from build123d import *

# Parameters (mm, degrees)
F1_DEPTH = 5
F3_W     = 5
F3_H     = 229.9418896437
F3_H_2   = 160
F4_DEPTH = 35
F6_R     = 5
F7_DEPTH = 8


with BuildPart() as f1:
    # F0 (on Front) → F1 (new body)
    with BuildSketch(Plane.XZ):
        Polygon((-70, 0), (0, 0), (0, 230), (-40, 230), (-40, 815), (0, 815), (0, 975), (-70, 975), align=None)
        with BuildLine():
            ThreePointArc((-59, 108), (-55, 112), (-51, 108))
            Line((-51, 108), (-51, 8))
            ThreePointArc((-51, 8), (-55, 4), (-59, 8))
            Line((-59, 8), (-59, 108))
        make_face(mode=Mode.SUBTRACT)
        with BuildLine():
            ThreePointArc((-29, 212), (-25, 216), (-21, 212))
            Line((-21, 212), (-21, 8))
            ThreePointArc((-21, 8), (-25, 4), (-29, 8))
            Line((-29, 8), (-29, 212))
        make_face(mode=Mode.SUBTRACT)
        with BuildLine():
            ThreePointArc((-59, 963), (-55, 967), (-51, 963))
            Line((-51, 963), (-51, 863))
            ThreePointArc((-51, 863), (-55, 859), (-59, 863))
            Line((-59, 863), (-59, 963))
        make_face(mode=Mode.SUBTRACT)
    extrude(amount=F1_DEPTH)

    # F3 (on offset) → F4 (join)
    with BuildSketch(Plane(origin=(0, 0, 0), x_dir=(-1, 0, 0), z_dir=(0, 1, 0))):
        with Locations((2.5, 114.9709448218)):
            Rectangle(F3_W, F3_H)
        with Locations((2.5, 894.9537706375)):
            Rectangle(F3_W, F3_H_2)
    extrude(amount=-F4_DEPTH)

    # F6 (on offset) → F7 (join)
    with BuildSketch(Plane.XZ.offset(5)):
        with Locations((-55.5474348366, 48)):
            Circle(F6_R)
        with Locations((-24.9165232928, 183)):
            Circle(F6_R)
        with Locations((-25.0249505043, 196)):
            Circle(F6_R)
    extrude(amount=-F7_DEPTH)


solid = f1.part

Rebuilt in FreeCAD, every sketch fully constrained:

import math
import FreeCAD as App
import Part
import Sketcher

V = App.Vector

doc = App.newDocument("Part")
body = doc.addObject("PartDesign::Body", "Body")

# Sketch on XZ plane
sketch1 = body.newObject("Sketcher::SketchObject", "Sketch")
sketch1.AttachmentSupport = (doc.getObject("XZ_Plane"), [""])
sketch1.MapMode = "FlatFace"
sketch1.addGeometry([
    Part.LineSegment(V(-70, 0, 0), V(0, 0, 0)),  # 0
    Part.LineSegment(V(0, 0, 0), V(0, 230, 0)),  # 1
    Part.LineSegment(V(0, 230, 0), V(-40, 230, 0)),  # 2
    Part.LineSegment(V(-40, 230, 0), V(-40, 815, 0)),  # 3
    Part.LineSegment(V(-40, 815, 0), V(0, 815, 0)),  # 4
    Part.LineSegment(V(0, 815, 0), V(0, 975, 0)),  # 5
    Part.LineSegment(V(0, 975, 0), V(-70, 975, 0)),  # 6
    Part.LineSegment(V(-70, 975, 0), V(-70, 0, 0)),  # 7
    Part.LineSegment(V(-59, 8, 0), V(-59, 108, 0)),  # 8
    Part.ArcOfCircle(Part.Circle(V(-55, 108, 0), V(0, 0, 1), 4), math.radians(0), math.radians(180)),  # 9
    Part.LineSegment(V(-51, 108, 0), V(-51, 8, 0)),  # 10
    Part.ArcOfCircle(Part.Circle(V(-55, 8, 0), V(0, 0, 1), 4), math.radians(180), math.radians(360)),  # 11
    Part.LineSegment(V(-29, 8, 0), V(-29, 212, 0)),  # 12
    Part.ArcOfCircle(Part.Circle(V(-25, 212, 0), V(0, 0, 1), 4), math.radians(0), math.radians(180)),  # 13
    Part.LineSegment(V(-21, 212, 0), V(-21, 8, 0)),  # 14
    Part.ArcOfCircle(Part.Circle(V(-25, 8, 0), V(0, 0, 1), 4), math.radians(180), math.radians(360)),  # 15
    Part.LineSegment(V(-59, 863, 0), V(-59, 963, 0)),  # 16
    Part.ArcOfCircle(Part.Circle(V(-55, 963, 0), V(0, 0, 1), 4), math.radians(0), math.radians(180)),  # 17
    Part.LineSegment(V(-51, 963, 0), V(-51, 863, 0)),  # 18
    Part.ArcOfCircle(Part.Circle(V(-55, 863, 0), V(0, 0, 1), 4), math.radians(180), math.radians(360)),  # 19
], False)
sketch1.addConstraint([
    Sketcher.Constraint("Coincident", 0, 2, 1, 1),
    Sketcher.Constraint("Coincident", 1, 2, 2, 1),
    Sketcher.Constraint("Coincident", 2, 2, 3, 1),
    Sketcher.Constraint("Coincident", 3, 2, 4, 1),
    Sketcher.Constraint("Coincident", 4, 2, 5, 1),
    Sketcher.Constraint("Coincident", 5, 2, 6, 1),
    Sketcher.Constraint("Coincident", 6, 2, 7, 1),
    Sketcher.Constraint("Coincident", 7, 2, 0, 1),
    Sketcher.Constraint("Tangent", 8, 2, 9, 2),
    Sketcher.Constraint("Tangent", 9, 1, 10, 1),
    Sketcher.Constraint("Tangent", 10, 2, 11, 2),
    Sketcher.Constraint("Tangent", 11, 1, 8, 1),
    Sketcher.Constraint("Tangent", 12, 2, 13, 2),
    Sketcher.Constraint("Tangent", 13, 1, 14, 1),
    Sketcher.Constraint("Tangent", 14, 2, 15, 2),
    Sketcher.Constraint("Tangent", 15, 1, 12, 1),
    Sketcher.Constraint("Tangent", 16, 2, 17, 2),
    Sketcher.Constraint("Tangent", 17, 1, 18, 1),
    Sketcher.Constraint("Tangent", 18, 2, 19, 2),
    Sketcher.Constraint("Tangent", 19, 1, 16, 1),
    Sketcher.Constraint("Horizontal", 0),
    Sketcher.Constraint("Vertical", 1),
    Sketcher.Constraint("Horizontal", 2),
    Sketcher.Constraint("Vertical", 3),
    Sketcher.Constraint("Horizontal", 4),
    Sketcher.Constraint("Vertical", 5),
    Sketcher.Constraint("Horizontal", 6),
    Sketcher.Constraint("Vertical", 7),
    Sketcher.Constraint("Vertical", 8),
    Sketcher.Constraint("Vertical", 10),
    Sketcher.Constraint("Vertical", 12),
    Sketcher.Constraint("Vertical", 14),
    Sketcher.Constraint("Vertical", 16),
    Sketcher.Constraint("Vertical", 18),
    Sketcher.Constraint("Coincident", 0, 2, -1, 1),
    Sketcher.Constraint("Equal", 11, 13),
    Sketcher.Constraint("Equal", 15, 17),
    Sketcher.Constraint("PointOnObject", 4, 2, -2),
    Sketcher.Constraint("Horizontal", 11, 3, 15, 3),
    Sketcher.Constraint("Vertical", 11, 3, 17, 3),
    Sketcher.Constraint("Equal", 10, 16),
    Sketcher.Constraint("Radius", 9, 4.0),
    Sketcher.Constraint("DistanceX", 0, 1, 0, 2, 70.0),
    Sketcher.Constraint("DistanceX", 2, 2, 2, 1, 40.0),
    Sketcher.Constraint("DistanceY", 1, 1, 1, 2, 230.0),
    Sketcher.Constraint("DistanceY", 3, 1, 3, 2, 585.0),
    Sketcher.Constraint("DistanceY", 5, 1, 5, 2, 160.0),
    Sketcher.Constraint("DistanceY", 8, 1, 8, 2, 100.0),
    Sketcher.Constraint("DistanceY", 12, 1, 12, 2, 204.0),
    Sketcher.Constraint("DistanceX", 9, 3, -1, 1, 55.0),
    Sketcher.Constraint("DistanceY", -1, 1, 9, 3, 108.0),
    Sketcher.Constraint("DistanceX", 13, 3, -1, 1, 25.0),
    Sketcher.Constraint("DistanceY", -1, 1, 17, 3, 963.0),
])
pad1 = body.newObject("PartDesign::Pad", "Pad")
pad1.Profile = sketch1
pad1.Length = 5

# Sketch on XZ plane
sketch2 = body.newObject("Sketcher::SketchObject", "Sketch001")
sketch2.AttachmentSupport = (doc.getObject("XZ_Plane"), [""])
sketch2.MapMode = "FlatFace"
sketch2.addGeometry([
    Part.LineSegment(V(0, 230, 0), V(0, 0, 0)),  # 0
    Part.LineSegment(V(0, 0, 0), V(-5, 0, 0)),  # 1
    Part.LineSegment(V(-5, 0, 0), V(-5, 230, 0)),  # 2
    Part.LineSegment(V(-5, 230, 0), V(0, 230, 0)),  # 3
    Part.LineSegment(V(0, 975, 0), V(0, 815, 0)),  # 4
    Part.LineSegment(V(0, 815, 0), V(-5, 815, 0)),  # 5
    Part.LineSegment(V(-5, 815, 0), V(-5, 975, 0)),  # 6
    Part.LineSegment(V(-5, 975, 0), V(0, 975, 0)),  # 7
], False)
sketch2.addConstraint([
    Sketcher.Constraint("Coincident", 0, 2, 1, 1),
    Sketcher.Constraint("Coincident", 1, 2, 2, 1),
    Sketcher.Constraint("Coincident", 2, 2, 3, 1),
    Sketcher.Constraint("Coincident", 3, 2, 0, 1),
    Sketcher.Constraint("Coincident", 4, 2, 5, 1),
    Sketcher.Constraint("Coincident", 5, 2, 6, 1),
    Sketcher.Constraint("Coincident", 6, 2, 7, 1),
    Sketcher.Constraint("Coincident", 7, 2, 4, 1),
    Sketcher.Constraint("Vertical", 0),
    Sketcher.Constraint("Horizontal", 1),
    Sketcher.Constraint("Vertical", 2),
    Sketcher.Constraint("Horizontal", 3),
    Sketcher.Constraint("Vertical", 4),
    Sketcher.Constraint("Horizontal", 5),
    Sketcher.Constraint("Vertical", 6),
    Sketcher.Constraint("Horizontal", 7),
    Sketcher.Constraint("Coincident", 0, 2, -1, 1),
    Sketcher.Constraint("PointOnObject", 4, 2, -2),
    Sketcher.Constraint("Vertical", 2, 2, 5, 2),
    Sketcher.Constraint("DistanceX", 1, 2, 1, 1, 5.0),
    Sketcher.Constraint("DistanceY", 4, 2, 4, 1, 160.0),
    Sketcher.Constraint("DistanceY", 0, 2, 0, 1, 229.94189),
    Sketcher.Constraint("DistanceY", -1, 1, 4, 2, 814.953771),
])
pad2 = body.newObject("PartDesign::Pad", "Pad001")
pad2.Profile = sketch2
pad2.Length = 35

# Sketch on XZ plane
sketch3 = body.newObject("Sketcher::SketchObject", "Sketch002")
sketch3.AttachmentSupport = (doc.getObject("XZ_Plane"), [""])
sketch3.MapMode = "FlatFace"
sketch3.AttachmentOffset = App.Placement(V(0, 0, 5), App.Rotation())
sketch3.addGeometry([
    Part.Circle(V(-56, 48, 0), V(0, 0, 1), 5),
    Part.Circle(V(-25, 183, 0), V(0, 0, 1), 5),
    Part.Circle(V(-25, 196, 0), V(0, 0, 1), 5),
], False)
sketch3.addConstraint([
    Sketcher.Constraint("Equal", 0, 1),
    Sketcher.Constraint("Equal", 1, 2),
    Sketcher.Constraint("Diameter", 0, 10.0),
    Sketcher.Constraint("DistanceY", -1, 1, 0, 3, 48.0),
    Sketcher.Constraint("DistanceY", -1, 1, 1, 3, 183.0),
    Sketcher.Constraint("DistanceY", -1, 1, 2, 3, 196.0),
    Sketcher.Constraint("DistanceX", 2, 3, -1, 1, 25.024951),
    Sketcher.Constraint("DistanceX", 0, 3, 1, 3, 30.630912),
    Sketcher.Constraint("DistanceX", 0, 3, -1, 1, 55.547435),
])
pad3 = body.newObject("PartDesign::Pad", "Pad002")
pad3.Profile = sketch3
pad3.Length = 8
pad3.Reversed = True

doc.recompute()
